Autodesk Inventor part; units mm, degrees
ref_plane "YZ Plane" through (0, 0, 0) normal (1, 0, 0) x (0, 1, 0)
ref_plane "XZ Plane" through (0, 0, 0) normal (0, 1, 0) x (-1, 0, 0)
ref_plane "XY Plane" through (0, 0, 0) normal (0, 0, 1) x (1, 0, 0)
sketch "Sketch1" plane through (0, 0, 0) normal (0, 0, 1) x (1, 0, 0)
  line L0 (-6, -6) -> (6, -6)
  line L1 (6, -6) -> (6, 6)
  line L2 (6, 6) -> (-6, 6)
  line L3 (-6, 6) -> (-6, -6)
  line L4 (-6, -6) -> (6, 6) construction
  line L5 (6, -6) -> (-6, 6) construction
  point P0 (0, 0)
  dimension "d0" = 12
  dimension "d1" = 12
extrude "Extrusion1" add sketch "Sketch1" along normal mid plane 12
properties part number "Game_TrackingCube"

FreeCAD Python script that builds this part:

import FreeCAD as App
import Part
import Sketcher

V = App.Vector
Q = App.Units.Quantity

doc = App.newDocument("Part")
params = doc.addObject("Spreadsheet::Sheet", "Params")
for row, (alias, value) in enumerate([
    ("sketch1_width", "12 mm"),
    ("pad1_length", "12 mm"),
], start=1):
    params.set(f"A{row}", alias)
    params.set(f"B{row}", "=" + value)
    params.setAlias(f"B{row}", alias)

body = doc.addObject("PartDesign::Body", "Body")

sketch1 = body.newObject("Sketcher::SketchObject", "Sketch")
sketch1.AttachmentSupport = (doc.getObject("XY_Plane"), [""])
sketch1.MapMode = "FlatFace"
sketch1.addGeometry([
    Part.LineSegment(V(-6, 6, 0), V(-6, -6, 0)),
    Part.LineSegment(V(-6, -6, 0), V(6, -6, 0)),
    Part.LineSegment(V(6, -6, 0), V(6, 6, 0)),
    Part.LineSegment(V(6, 6, 0), V(-6, 6, 0)),
], False)
sketch1.addConstraint([
    Sketcher.Constraint("Coincident", 0, 2, 1, 1),
    Sketcher.Constraint("Coincident", 1, 2, 2, 1),
    Sketcher.Constraint("Coincident", 2, 2, 3, 1),
    Sketcher.Constraint("Coincident", 3, 2, 0, 1),
    Sketcher.Constraint("Vertical", 0),
    Sketcher.Constraint("Horizontal", 1),
    Sketcher.Constraint("Vertical", 2),
    Sketcher.Constraint("Horizontal", 3),
    Sketcher.Constraint("Symmetric", 0, 2, 2, 2, -1, 1),
    Sketcher.Constraint("Equal", 3, 0),
    Sketcher.Constraint("DistanceX", 1, 1, 1, 2, Q("12 mm")),
])
sketch1.setExpression("Constraints[10]", "Params.sketch1_width")
pad1 = body.newObject("PartDesign::Pad", "Pad")
pad1.Profile = sketch1
pad1.setExpression("Length", "Params.pad1_length")
pad1.Midplane = True

doc.recompute()
